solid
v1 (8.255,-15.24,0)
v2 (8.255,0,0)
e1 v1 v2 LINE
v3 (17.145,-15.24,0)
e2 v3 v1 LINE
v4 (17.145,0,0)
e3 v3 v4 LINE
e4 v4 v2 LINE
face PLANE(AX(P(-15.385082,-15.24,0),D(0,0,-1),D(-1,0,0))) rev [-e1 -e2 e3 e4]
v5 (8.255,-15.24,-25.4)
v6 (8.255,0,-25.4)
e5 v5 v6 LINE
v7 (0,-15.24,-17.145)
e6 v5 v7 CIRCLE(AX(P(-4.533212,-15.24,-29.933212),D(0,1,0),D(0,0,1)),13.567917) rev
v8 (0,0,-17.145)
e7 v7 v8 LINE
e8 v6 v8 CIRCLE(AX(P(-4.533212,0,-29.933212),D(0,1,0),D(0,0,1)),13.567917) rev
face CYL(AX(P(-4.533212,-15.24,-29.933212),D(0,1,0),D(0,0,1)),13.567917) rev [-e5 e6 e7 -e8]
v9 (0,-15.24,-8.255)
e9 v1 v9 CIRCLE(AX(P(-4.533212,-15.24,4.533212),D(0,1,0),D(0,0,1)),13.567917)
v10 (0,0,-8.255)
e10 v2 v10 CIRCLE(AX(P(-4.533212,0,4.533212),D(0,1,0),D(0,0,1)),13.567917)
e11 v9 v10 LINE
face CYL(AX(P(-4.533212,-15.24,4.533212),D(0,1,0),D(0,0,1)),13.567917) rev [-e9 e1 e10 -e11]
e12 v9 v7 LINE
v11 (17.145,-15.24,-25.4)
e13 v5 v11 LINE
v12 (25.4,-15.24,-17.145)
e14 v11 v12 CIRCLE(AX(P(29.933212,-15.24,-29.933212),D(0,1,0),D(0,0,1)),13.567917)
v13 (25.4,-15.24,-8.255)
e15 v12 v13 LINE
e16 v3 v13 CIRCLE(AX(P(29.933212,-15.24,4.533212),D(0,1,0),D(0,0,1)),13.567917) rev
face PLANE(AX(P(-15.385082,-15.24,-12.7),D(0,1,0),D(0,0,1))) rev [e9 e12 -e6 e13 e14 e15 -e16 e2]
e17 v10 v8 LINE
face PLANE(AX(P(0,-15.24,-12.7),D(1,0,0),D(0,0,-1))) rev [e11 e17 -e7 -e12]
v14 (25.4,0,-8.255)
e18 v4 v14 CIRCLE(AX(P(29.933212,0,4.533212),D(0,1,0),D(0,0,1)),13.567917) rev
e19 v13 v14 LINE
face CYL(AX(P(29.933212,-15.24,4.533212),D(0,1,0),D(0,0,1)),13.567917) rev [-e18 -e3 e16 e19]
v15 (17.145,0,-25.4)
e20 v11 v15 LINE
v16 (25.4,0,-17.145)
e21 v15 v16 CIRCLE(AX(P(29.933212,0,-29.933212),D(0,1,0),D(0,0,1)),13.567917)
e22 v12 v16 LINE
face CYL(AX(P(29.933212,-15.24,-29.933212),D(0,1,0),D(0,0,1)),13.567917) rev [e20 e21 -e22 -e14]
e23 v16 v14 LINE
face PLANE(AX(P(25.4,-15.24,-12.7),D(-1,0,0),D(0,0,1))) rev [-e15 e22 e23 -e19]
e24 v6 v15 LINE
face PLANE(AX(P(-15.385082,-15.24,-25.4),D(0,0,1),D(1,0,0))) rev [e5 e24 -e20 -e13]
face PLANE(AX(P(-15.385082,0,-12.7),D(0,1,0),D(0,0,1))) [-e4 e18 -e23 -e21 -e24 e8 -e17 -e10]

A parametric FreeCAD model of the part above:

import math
import FreeCAD as App
import Part
import Sketcher
Q = App.Units.Quantity

doc = App.newDocument("Part")
body = doc.addObject("PartDesign::Body", "Body")

sketch1 = body.newObject("Sketcher::SketchObject", "Sketch")
sketch1.AttachmentSupport = (doc.getObject("XZ_Plane"), [""])
sketch1.MapMode = "FlatFace"
sketch1.addGeometry([
    Part.LineSegment(App.Vector(17.145, -25.4, 0), App.Vector(8.255, -25.4, 0)),
    Part.ArcOfCircle(Part.Circle(App.Vector(-4.533212, -29.933212, 0), App.Vector(0, 0, 1), 13.567917), math.radians(19.518584), math.radians(70.481416)),
    Part.LineSegment(App.Vector(0, -17.145, 0), App.Vector(0, -8.255, 0)),
    Part.ArcOfCircle(Part.Circle(App.Vector(-4.533212, 4.533212, 0), App.Vector(0, 0, 1), 13.567917), math.radians(-70.481416), math.radians(-19.518584)),
    Part.LineSegment(App.Vector(8.255, 0, 0), App.Vector(17.145, 0, 0)),
    Part.ArcOfCircle(Part.Circle(App.Vector(29.933212, 4.533212, 0), App.Vector(0, 0, 1), 13.567917), math.radians(-160.481416), math.radians(-109.518584)),
    Part.LineSegment(App.Vector(25.4, -8.255, 0), App.Vector(25.4, -17.145, 0)),
    Part.ArcOfCircle(Part.Circle(App.Vector(29.933212, -29.933212, 0), App.Vector(0, 0, 1), 13.567917), math.radians(109.518584), math.radians(160.481416)),
], False)
sketch1.addConstraint([
    Sketcher.Constraint("Coincident", 0, 2, 1, 1),
    Sketcher.Constraint("Coincident", 1, 2, 2, 1),
    Sketcher.Constraint("Coincident", 2, 2, 3, 1),
    Sketcher.Constraint("Coincident", 3, 2, 4, 1),
    Sketcher.Constraint("Coincident", 4, 2, 5, 1),
    Sketcher.Constraint("Coincident", 5, 2, 6, 1),
    Sketcher.Constraint("Coincident", 6, 2, 7, 1),
    Sketcher.Constraint("Coincident", 7, 2, 0, 1),
    Sketcher.Constraint("Horizontal", 0),
    Sketcher.Constraint("Vertical", 2),
    Sketcher.Constraint("Horizontal", 4),
    Sketcher.Constraint("Vertical", 6),
    Sketcher.Constraint("Equal", 1, 3),
    Sketcher.Constraint("Equal", 3, 5),
    Sketcher.Constraint("Equal", 5, 7),
    Sketcher.Constraint("PointOnObject", 1, 2, -2),
    Sketcher.Constraint("PointOnObject", 3, 2, -1),
    Sketcher.Constraint("Horizontal", 3, 3, 5, 3),
    Sketcher.Constraint("Horizontal", 1, 3, 7, 3),
    Sketcher.Constraint("Horizontal", 2, 2, 5, 2),
    Sketcher.Constraint("Horizontal", 1, 2, 6, 2),
    Sketcher.Constraint("Vertical", 1, 3, 3, 3),
    Sketcher.Constraint("Vertical", 0, 2, 3, 2),
    Sketcher.Constraint("Equal", 4, 2),
    Sketcher.Constraint("DistanceY", 0, 2, -1, 1, Q("1 in")),
    Sketcher.Constraint("DistanceX", -1, 1, 5, 2, Q("1 in")),
    Sketcher.Constraint("DistanceX", 0, 2, 0, 1, Q("0.35 in")),
    Sketcher.Constraint("Radius", 1, Q("13.567917 mm")),
])
pad1 = body.newObject("PartDesign::Pad", "Pad")
pad1.Profile = sketch1
pad1.Length = Q("0.6 in")

doc.recompute()
